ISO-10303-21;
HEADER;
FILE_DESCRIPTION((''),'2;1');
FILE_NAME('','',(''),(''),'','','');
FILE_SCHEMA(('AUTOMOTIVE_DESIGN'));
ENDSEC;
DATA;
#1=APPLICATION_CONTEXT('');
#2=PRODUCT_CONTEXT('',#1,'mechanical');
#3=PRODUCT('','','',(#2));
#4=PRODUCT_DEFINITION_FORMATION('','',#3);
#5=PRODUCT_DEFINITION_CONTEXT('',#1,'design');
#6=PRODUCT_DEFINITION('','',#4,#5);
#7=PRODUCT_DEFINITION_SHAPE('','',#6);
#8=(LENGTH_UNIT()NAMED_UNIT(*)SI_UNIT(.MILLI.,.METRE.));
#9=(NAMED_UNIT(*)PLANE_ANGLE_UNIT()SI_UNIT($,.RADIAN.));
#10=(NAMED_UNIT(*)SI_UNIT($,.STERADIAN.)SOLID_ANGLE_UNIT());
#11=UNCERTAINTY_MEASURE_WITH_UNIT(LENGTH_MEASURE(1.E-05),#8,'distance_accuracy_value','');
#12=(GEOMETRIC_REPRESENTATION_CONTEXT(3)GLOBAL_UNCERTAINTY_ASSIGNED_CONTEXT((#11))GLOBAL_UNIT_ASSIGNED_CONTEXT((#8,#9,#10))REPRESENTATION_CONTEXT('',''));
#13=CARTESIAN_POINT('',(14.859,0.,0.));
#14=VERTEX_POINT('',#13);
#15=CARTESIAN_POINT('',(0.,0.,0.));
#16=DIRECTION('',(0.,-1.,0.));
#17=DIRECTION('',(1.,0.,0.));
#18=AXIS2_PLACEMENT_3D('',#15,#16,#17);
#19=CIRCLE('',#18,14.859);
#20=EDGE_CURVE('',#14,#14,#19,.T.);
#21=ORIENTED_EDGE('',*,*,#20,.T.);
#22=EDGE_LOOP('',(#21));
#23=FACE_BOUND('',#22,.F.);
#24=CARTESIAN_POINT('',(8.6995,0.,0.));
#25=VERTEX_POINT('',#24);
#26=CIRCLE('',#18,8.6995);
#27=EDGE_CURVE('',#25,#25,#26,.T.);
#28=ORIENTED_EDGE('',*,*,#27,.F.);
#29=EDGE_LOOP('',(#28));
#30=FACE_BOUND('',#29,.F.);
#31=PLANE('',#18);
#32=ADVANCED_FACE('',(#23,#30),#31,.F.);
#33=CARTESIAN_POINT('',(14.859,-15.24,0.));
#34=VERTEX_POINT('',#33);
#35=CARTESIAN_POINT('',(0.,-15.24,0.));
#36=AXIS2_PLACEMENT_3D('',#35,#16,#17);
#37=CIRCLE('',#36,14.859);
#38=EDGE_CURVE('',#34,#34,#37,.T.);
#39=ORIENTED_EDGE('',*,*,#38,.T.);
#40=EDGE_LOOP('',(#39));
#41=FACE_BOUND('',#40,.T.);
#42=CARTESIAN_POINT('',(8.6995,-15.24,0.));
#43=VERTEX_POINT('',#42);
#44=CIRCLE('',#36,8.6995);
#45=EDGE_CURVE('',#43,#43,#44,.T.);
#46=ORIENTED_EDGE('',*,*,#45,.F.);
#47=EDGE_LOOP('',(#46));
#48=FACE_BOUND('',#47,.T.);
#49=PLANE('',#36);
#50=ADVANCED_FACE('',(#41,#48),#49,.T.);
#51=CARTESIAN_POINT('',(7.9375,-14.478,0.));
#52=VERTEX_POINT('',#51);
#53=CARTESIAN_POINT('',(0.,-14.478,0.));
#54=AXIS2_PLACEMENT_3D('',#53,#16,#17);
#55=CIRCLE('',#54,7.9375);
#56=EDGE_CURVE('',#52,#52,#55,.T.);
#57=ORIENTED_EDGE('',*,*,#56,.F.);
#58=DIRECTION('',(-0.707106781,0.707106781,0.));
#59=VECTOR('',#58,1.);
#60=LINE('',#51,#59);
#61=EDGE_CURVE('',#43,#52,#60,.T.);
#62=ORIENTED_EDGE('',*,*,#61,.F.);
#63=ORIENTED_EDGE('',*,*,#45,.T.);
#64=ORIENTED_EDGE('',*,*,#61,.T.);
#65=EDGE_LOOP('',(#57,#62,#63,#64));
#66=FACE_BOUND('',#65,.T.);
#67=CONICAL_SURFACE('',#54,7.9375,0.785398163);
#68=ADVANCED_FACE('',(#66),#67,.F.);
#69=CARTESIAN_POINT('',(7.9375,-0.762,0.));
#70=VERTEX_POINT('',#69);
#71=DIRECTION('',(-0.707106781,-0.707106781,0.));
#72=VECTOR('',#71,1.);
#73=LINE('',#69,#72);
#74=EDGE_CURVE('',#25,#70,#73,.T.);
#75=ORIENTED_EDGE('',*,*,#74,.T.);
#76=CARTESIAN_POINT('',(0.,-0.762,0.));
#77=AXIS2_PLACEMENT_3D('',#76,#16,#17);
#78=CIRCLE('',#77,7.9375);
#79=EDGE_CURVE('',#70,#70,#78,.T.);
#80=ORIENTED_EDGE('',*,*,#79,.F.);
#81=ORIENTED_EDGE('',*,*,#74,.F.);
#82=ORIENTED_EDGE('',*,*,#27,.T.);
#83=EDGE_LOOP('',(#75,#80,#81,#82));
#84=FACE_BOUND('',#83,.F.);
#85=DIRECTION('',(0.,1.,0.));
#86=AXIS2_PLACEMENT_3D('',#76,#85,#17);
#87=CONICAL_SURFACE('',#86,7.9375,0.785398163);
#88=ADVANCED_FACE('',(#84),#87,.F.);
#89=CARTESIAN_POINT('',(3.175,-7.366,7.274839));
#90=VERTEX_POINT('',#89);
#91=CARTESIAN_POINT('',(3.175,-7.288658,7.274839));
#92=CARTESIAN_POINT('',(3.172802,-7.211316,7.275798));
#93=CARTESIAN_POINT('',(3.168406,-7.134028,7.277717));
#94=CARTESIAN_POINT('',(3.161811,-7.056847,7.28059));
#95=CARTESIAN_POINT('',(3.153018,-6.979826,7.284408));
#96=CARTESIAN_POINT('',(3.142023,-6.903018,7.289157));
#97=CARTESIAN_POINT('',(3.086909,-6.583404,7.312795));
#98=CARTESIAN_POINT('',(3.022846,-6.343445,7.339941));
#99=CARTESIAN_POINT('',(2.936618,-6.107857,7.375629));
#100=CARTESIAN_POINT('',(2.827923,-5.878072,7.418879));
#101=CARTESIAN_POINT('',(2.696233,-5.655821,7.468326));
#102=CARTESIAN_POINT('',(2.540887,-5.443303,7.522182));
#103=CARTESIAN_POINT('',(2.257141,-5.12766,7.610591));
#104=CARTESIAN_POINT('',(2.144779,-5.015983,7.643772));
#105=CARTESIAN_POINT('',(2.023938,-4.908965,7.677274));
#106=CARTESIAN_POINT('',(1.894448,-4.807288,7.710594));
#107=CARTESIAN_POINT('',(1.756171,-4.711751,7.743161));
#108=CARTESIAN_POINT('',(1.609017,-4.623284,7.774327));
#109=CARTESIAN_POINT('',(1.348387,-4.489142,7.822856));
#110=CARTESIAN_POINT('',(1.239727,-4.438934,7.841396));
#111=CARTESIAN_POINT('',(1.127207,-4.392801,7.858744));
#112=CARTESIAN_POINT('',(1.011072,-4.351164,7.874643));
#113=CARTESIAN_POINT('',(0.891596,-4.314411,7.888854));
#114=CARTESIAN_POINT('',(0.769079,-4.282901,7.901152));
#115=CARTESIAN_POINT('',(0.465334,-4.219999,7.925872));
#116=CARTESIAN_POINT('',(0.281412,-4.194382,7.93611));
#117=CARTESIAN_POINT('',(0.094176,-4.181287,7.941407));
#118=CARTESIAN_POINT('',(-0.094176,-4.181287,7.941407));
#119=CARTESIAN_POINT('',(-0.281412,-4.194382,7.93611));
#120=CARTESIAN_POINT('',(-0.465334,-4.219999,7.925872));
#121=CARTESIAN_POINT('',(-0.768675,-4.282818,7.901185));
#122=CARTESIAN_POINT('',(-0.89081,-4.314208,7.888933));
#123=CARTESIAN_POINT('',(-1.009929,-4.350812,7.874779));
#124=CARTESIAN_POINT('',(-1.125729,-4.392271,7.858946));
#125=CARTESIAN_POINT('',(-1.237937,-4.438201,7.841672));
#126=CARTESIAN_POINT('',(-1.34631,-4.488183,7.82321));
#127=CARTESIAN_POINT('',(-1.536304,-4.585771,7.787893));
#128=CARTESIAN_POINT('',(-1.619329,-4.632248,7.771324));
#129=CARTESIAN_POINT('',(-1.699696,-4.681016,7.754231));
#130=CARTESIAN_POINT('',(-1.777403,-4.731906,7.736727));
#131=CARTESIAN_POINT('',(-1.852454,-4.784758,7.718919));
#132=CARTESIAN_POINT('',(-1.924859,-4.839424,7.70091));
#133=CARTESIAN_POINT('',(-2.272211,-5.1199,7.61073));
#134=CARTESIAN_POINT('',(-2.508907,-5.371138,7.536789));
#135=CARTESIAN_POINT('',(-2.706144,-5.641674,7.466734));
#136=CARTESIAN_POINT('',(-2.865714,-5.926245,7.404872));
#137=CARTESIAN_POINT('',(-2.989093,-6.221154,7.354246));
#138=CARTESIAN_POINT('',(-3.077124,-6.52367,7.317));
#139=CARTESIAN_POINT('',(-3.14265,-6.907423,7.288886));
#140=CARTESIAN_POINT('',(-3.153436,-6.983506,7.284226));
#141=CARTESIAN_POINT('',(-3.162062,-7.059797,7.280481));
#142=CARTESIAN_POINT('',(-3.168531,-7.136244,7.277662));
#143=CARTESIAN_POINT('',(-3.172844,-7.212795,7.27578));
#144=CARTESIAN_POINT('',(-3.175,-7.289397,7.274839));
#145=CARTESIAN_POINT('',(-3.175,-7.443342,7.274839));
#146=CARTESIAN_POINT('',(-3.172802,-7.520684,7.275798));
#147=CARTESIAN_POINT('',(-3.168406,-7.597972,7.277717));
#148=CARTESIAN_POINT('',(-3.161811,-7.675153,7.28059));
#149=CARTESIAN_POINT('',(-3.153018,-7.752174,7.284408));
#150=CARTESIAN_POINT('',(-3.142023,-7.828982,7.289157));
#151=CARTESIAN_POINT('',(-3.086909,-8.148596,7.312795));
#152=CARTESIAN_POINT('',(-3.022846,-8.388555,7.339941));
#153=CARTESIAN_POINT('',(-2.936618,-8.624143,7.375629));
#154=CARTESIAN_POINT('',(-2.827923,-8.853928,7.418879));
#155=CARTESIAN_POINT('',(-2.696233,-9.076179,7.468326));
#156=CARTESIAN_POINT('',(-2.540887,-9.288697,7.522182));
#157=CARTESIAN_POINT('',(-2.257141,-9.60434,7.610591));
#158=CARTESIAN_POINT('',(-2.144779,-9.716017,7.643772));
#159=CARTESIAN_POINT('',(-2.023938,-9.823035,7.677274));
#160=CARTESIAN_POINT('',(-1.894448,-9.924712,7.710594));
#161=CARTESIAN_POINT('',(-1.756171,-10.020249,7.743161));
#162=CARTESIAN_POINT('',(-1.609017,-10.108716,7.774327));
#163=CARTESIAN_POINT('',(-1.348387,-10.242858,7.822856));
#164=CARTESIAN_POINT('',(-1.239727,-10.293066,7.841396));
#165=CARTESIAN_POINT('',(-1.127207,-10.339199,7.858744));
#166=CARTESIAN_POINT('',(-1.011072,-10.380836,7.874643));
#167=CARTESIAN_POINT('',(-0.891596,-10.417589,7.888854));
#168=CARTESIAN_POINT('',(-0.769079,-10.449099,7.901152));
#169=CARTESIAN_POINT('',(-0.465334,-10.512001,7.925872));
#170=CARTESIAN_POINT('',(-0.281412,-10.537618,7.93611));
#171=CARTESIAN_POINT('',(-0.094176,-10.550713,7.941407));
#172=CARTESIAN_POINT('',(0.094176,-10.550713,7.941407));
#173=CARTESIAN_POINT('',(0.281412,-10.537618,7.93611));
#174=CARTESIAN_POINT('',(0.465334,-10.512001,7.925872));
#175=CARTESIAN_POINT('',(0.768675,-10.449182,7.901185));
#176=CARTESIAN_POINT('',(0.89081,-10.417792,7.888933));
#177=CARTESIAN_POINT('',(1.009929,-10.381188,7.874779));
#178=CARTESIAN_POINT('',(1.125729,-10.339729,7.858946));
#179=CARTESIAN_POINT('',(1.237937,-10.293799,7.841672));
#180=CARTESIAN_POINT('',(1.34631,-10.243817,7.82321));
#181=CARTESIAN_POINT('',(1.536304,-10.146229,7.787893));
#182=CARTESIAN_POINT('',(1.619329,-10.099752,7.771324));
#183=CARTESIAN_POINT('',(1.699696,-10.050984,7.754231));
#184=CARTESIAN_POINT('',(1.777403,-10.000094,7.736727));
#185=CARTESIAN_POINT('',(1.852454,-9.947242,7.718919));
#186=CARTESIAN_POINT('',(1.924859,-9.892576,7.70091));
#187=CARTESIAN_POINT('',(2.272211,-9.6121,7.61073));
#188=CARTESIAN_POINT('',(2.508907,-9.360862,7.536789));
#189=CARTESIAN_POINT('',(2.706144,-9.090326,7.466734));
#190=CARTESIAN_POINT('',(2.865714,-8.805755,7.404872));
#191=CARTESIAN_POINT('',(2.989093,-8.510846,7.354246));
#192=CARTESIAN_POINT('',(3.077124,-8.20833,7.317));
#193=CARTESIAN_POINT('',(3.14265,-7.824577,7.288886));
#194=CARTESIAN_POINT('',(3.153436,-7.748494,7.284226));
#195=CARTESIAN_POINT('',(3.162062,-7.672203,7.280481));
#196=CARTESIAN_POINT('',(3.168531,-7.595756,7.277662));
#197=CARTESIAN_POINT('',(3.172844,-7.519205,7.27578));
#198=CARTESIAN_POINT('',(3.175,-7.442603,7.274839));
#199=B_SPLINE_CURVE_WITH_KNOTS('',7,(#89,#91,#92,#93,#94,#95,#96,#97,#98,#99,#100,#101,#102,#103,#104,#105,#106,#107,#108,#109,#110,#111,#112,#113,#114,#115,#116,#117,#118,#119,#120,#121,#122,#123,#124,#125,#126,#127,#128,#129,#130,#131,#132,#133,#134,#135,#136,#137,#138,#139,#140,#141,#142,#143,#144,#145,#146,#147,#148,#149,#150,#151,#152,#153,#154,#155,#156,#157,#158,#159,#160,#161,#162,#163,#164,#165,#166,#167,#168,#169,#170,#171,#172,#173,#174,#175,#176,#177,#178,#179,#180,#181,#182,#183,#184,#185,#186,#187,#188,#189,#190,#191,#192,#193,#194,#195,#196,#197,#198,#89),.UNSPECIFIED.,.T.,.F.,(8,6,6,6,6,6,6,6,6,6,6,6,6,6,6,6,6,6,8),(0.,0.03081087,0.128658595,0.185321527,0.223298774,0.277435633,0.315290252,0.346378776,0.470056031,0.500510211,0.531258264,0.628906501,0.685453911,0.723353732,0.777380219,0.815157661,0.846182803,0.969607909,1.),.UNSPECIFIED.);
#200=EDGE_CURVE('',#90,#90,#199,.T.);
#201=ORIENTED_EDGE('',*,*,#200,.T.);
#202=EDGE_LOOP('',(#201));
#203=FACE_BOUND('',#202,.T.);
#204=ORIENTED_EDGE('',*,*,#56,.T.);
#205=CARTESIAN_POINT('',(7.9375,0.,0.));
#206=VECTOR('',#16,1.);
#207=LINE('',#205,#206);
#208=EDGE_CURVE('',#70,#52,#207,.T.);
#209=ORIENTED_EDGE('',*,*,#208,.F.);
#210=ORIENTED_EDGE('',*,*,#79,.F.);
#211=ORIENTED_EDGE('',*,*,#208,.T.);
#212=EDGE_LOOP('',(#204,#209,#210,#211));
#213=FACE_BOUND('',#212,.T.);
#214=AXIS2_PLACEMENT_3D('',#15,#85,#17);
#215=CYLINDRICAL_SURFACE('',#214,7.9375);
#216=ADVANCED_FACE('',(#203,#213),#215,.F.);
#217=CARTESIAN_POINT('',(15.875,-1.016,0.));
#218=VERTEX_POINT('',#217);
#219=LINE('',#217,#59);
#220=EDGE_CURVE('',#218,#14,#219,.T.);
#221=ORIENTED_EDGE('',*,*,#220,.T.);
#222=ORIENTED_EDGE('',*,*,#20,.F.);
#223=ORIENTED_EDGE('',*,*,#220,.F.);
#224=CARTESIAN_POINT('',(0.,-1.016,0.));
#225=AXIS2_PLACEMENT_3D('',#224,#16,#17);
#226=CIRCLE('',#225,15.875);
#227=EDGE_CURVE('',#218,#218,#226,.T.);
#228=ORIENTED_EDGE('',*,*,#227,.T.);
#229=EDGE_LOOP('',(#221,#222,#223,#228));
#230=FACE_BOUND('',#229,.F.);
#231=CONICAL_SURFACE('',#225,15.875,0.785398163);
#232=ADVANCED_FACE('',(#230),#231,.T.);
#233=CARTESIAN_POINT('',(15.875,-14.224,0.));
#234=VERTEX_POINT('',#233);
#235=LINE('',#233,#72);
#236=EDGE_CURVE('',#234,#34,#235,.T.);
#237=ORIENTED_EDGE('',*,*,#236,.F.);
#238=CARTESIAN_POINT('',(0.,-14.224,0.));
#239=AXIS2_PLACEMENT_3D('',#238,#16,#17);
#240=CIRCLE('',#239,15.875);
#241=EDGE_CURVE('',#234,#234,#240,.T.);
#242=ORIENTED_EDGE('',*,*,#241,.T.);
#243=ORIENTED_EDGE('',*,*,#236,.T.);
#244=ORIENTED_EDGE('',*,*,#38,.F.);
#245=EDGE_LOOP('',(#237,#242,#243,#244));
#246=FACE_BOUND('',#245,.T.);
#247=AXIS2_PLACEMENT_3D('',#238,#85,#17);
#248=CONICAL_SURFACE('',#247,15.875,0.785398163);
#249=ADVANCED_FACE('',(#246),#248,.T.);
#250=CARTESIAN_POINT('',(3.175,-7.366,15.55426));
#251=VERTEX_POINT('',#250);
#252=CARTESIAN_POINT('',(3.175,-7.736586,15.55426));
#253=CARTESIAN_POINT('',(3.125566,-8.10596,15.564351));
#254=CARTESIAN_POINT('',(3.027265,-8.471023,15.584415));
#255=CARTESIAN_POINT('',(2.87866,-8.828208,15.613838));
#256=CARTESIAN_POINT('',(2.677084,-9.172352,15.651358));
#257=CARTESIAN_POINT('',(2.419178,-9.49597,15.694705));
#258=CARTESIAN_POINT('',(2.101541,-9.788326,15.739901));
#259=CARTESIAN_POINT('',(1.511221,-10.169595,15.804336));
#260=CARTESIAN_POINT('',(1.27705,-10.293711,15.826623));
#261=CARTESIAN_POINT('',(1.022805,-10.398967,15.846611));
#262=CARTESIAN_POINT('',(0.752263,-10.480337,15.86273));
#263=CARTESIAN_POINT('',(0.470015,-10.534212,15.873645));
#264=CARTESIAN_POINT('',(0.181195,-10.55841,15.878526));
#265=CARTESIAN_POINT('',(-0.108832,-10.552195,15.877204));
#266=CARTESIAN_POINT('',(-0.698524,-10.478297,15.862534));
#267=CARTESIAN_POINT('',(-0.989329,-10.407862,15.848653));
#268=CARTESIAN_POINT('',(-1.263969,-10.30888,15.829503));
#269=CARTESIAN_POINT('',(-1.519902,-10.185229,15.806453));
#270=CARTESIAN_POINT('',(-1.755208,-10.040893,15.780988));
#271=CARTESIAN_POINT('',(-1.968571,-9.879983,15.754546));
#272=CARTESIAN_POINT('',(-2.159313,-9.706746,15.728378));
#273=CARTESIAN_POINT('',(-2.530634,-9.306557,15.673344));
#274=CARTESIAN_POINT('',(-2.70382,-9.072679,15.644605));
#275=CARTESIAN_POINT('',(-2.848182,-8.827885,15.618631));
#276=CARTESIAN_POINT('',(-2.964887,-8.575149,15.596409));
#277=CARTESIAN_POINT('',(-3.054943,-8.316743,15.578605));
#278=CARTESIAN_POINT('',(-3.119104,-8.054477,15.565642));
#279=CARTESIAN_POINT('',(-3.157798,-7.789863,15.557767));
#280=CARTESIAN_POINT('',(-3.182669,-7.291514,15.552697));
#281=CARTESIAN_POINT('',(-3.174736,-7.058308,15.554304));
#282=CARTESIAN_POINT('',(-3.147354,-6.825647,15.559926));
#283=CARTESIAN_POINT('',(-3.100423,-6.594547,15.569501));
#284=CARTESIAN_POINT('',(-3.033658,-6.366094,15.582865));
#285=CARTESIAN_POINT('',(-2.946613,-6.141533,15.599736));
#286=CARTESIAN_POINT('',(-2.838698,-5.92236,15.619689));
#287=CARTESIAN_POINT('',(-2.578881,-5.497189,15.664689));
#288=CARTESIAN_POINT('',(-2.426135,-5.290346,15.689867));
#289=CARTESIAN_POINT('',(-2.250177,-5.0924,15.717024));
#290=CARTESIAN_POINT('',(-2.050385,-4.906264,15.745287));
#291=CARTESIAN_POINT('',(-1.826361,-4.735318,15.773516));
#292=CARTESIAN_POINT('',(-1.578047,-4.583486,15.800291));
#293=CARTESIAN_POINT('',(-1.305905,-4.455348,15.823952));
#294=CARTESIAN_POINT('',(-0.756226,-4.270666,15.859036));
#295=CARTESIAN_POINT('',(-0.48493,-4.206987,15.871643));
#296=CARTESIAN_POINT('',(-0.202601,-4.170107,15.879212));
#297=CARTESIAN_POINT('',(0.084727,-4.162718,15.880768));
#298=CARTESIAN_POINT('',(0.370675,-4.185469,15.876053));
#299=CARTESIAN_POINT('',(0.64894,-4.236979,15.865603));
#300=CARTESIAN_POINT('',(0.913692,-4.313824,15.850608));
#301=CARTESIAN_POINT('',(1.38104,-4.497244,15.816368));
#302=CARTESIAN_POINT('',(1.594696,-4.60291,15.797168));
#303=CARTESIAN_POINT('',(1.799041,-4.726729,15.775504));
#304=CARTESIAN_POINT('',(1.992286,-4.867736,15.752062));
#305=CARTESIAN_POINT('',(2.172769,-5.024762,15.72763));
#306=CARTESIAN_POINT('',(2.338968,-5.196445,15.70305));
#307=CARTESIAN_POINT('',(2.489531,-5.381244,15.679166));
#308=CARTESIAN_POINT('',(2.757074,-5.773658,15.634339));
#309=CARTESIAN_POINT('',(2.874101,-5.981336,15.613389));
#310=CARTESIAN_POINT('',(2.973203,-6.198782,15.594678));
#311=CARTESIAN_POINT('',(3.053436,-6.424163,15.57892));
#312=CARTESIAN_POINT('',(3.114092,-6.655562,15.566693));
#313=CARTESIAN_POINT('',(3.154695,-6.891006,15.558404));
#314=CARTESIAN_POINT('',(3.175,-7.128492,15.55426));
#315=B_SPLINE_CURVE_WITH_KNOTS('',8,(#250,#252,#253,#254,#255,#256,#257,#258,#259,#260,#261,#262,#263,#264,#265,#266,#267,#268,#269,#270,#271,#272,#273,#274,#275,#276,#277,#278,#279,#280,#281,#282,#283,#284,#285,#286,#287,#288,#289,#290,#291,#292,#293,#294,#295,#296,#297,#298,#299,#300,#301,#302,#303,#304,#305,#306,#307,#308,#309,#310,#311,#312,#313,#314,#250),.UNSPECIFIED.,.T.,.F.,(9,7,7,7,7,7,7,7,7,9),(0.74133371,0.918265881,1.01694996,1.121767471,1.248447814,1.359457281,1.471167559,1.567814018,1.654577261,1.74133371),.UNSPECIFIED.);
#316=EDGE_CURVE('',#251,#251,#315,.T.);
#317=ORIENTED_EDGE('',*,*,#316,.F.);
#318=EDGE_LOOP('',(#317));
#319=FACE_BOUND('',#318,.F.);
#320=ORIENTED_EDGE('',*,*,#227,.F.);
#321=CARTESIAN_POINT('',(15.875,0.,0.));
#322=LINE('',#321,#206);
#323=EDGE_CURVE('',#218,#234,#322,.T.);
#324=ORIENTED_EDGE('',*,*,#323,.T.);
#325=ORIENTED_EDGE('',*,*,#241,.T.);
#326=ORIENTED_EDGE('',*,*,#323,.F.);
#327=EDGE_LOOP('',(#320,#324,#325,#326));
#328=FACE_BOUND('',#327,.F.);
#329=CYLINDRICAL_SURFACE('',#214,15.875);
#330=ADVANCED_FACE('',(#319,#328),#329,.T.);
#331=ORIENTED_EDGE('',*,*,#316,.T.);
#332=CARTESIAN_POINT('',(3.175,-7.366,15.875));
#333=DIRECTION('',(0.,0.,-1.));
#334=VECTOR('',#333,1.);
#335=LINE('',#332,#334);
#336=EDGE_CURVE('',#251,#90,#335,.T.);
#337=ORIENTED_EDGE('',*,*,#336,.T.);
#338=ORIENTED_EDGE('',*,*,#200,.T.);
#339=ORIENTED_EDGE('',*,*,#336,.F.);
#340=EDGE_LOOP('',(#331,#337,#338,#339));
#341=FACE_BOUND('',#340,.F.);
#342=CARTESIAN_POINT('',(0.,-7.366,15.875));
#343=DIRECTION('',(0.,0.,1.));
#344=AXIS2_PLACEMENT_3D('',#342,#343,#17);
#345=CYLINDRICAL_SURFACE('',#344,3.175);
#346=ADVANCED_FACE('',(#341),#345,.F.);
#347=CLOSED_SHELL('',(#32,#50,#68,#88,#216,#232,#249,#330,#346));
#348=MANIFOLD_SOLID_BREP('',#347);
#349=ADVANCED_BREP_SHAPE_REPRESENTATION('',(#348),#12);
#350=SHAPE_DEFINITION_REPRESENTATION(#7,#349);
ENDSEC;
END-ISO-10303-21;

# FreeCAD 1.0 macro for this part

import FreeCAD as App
import Part
import Sketcher

V = App.Vector
Q = App.Units.Quantity


def edges_at(feature, points):
    """Names of the edges that pass closest to the given points."""
    edges = feature.Shape.Edges
    near = lambda p: min(range(len(edges)), key=lambda i: edges[i].distToShape(Part.Vertex(*p))[0])
    return sorted({f"Edge{near(p) + 1}" for p in points})

doc = App.newDocument("Part")
params = doc.addObject("Spreadsheet::Sheet", "Params")
for row, (alias, value) in enumerate([
    ("sketch1_diameter", "1.25 in"),
    ("sketch1_diameter2", "0.625 in"),
    ("pad1_length", "0.6 in"),
    ("chamfer_size", "0.04 in"),
    ("chamfer2_size", "0.03 in"),
    ("sketch2_diameter", "0.25 in"),
    ("pocket1_length", "0.56 in"),
], start=1):
    params.set(f"A{row}", alias)
    params.set(f"B{row}", "=" + value)
    params.setAlias(f"B{row}", alias)

body = doc.addObject("PartDesign::Body", "Body")

# Sketch on XZ plane
sketch1 = body.newObject("Sketcher::SketchObject", "Sketch")
sketch1.AttachmentSupport = (doc.getObject("XZ_Plane"), [""])
sketch1.MapMode = "FlatFace"
sketch1.addGeometry(Part.Circle(V(0, 0, 0), V(0, 0, 1), 16), False)
sketch1.addGeometry(Part.Circle(V(0, 0, 0), V(0, 0, 1), 8), False)
sketch1.addConstraint(Sketcher.Constraint("Coincident", 0, 3, -1, 1))
sketch1.addConstraint(Sketcher.Constraint("Coincident", 1, 3, -1, 1))
sketch1.addConstraint(Sketcher.Constraint("Diameter", 0, Q("1.25 in")))
sketch1.addConstraint(Sketcher.Constraint("Diameter", 1, Q("0.625 in")))
sketch1.setExpression("Constraints[2]", "Params.sketch1_diameter")
sketch1.setExpression("Constraints[3]", "Params.sketch1_diameter2")
pad1 = body.newObject("PartDesign::Pad", "Pad")
pad1.Profile = sketch1
pad1.setExpression("Length", "Params.pad1_length")
doc.recompute()

chamfer = body.newObject("PartDesign::Chamfer", "Chamfer")
chamfer.Base = (pad1, edges_at(pad1, [(-15.875, -15.24, 0), (-15.875, 0, 0)]))
chamfer.setExpression("Size", "Params.chamfer_size")
doc.recompute()

chamfer2 = body.newObject("PartDesign::Chamfer", "Chamfer001")
chamfer2.Base = (chamfer, edges_at(chamfer, [(-7.938, -15.24, 0), (-7.938, 0, 0)]))
chamfer2.setExpression("Size", "Params.chamfer2_size")

# Sketch on XY plane
sketch2 = body.newObject("Sketcher::SketchObject", "Sketch001")
sketch2.AttachmentSupport = (doc.getObject("XY_Plane"), [""])
sketch2.MapMode = "FlatFace"
sketch2.AttachmentOffset = App.Placement(V(0, 0, 0.625 * 25.4), App.Rotation())
sketch2.addGeometry(Part.Circle(V(0, -7.4, 0), V(0, 0, 1), 3.2), False)
sketch2.addConstraint(Sketcher.Constraint("PointOnObject", 0, 3, -2))
sketch2.addConstraint(Sketcher.Constraint("Diameter", 0, Q("0.25 in")))
sketch2.addConstraint(Sketcher.Constraint("DistanceY", 0, 3, -1, 1, Q("0.29 in")))
sketch2.setExpression("Constraints[1]", "Params.sketch2_diameter")
pocket1 = body.newObject("PartDesign::Pocket", "Pocket")
pocket1.Profile = sketch2
pocket1.setExpression("Length", "Params.pocket1_length")

doc.recompute()
